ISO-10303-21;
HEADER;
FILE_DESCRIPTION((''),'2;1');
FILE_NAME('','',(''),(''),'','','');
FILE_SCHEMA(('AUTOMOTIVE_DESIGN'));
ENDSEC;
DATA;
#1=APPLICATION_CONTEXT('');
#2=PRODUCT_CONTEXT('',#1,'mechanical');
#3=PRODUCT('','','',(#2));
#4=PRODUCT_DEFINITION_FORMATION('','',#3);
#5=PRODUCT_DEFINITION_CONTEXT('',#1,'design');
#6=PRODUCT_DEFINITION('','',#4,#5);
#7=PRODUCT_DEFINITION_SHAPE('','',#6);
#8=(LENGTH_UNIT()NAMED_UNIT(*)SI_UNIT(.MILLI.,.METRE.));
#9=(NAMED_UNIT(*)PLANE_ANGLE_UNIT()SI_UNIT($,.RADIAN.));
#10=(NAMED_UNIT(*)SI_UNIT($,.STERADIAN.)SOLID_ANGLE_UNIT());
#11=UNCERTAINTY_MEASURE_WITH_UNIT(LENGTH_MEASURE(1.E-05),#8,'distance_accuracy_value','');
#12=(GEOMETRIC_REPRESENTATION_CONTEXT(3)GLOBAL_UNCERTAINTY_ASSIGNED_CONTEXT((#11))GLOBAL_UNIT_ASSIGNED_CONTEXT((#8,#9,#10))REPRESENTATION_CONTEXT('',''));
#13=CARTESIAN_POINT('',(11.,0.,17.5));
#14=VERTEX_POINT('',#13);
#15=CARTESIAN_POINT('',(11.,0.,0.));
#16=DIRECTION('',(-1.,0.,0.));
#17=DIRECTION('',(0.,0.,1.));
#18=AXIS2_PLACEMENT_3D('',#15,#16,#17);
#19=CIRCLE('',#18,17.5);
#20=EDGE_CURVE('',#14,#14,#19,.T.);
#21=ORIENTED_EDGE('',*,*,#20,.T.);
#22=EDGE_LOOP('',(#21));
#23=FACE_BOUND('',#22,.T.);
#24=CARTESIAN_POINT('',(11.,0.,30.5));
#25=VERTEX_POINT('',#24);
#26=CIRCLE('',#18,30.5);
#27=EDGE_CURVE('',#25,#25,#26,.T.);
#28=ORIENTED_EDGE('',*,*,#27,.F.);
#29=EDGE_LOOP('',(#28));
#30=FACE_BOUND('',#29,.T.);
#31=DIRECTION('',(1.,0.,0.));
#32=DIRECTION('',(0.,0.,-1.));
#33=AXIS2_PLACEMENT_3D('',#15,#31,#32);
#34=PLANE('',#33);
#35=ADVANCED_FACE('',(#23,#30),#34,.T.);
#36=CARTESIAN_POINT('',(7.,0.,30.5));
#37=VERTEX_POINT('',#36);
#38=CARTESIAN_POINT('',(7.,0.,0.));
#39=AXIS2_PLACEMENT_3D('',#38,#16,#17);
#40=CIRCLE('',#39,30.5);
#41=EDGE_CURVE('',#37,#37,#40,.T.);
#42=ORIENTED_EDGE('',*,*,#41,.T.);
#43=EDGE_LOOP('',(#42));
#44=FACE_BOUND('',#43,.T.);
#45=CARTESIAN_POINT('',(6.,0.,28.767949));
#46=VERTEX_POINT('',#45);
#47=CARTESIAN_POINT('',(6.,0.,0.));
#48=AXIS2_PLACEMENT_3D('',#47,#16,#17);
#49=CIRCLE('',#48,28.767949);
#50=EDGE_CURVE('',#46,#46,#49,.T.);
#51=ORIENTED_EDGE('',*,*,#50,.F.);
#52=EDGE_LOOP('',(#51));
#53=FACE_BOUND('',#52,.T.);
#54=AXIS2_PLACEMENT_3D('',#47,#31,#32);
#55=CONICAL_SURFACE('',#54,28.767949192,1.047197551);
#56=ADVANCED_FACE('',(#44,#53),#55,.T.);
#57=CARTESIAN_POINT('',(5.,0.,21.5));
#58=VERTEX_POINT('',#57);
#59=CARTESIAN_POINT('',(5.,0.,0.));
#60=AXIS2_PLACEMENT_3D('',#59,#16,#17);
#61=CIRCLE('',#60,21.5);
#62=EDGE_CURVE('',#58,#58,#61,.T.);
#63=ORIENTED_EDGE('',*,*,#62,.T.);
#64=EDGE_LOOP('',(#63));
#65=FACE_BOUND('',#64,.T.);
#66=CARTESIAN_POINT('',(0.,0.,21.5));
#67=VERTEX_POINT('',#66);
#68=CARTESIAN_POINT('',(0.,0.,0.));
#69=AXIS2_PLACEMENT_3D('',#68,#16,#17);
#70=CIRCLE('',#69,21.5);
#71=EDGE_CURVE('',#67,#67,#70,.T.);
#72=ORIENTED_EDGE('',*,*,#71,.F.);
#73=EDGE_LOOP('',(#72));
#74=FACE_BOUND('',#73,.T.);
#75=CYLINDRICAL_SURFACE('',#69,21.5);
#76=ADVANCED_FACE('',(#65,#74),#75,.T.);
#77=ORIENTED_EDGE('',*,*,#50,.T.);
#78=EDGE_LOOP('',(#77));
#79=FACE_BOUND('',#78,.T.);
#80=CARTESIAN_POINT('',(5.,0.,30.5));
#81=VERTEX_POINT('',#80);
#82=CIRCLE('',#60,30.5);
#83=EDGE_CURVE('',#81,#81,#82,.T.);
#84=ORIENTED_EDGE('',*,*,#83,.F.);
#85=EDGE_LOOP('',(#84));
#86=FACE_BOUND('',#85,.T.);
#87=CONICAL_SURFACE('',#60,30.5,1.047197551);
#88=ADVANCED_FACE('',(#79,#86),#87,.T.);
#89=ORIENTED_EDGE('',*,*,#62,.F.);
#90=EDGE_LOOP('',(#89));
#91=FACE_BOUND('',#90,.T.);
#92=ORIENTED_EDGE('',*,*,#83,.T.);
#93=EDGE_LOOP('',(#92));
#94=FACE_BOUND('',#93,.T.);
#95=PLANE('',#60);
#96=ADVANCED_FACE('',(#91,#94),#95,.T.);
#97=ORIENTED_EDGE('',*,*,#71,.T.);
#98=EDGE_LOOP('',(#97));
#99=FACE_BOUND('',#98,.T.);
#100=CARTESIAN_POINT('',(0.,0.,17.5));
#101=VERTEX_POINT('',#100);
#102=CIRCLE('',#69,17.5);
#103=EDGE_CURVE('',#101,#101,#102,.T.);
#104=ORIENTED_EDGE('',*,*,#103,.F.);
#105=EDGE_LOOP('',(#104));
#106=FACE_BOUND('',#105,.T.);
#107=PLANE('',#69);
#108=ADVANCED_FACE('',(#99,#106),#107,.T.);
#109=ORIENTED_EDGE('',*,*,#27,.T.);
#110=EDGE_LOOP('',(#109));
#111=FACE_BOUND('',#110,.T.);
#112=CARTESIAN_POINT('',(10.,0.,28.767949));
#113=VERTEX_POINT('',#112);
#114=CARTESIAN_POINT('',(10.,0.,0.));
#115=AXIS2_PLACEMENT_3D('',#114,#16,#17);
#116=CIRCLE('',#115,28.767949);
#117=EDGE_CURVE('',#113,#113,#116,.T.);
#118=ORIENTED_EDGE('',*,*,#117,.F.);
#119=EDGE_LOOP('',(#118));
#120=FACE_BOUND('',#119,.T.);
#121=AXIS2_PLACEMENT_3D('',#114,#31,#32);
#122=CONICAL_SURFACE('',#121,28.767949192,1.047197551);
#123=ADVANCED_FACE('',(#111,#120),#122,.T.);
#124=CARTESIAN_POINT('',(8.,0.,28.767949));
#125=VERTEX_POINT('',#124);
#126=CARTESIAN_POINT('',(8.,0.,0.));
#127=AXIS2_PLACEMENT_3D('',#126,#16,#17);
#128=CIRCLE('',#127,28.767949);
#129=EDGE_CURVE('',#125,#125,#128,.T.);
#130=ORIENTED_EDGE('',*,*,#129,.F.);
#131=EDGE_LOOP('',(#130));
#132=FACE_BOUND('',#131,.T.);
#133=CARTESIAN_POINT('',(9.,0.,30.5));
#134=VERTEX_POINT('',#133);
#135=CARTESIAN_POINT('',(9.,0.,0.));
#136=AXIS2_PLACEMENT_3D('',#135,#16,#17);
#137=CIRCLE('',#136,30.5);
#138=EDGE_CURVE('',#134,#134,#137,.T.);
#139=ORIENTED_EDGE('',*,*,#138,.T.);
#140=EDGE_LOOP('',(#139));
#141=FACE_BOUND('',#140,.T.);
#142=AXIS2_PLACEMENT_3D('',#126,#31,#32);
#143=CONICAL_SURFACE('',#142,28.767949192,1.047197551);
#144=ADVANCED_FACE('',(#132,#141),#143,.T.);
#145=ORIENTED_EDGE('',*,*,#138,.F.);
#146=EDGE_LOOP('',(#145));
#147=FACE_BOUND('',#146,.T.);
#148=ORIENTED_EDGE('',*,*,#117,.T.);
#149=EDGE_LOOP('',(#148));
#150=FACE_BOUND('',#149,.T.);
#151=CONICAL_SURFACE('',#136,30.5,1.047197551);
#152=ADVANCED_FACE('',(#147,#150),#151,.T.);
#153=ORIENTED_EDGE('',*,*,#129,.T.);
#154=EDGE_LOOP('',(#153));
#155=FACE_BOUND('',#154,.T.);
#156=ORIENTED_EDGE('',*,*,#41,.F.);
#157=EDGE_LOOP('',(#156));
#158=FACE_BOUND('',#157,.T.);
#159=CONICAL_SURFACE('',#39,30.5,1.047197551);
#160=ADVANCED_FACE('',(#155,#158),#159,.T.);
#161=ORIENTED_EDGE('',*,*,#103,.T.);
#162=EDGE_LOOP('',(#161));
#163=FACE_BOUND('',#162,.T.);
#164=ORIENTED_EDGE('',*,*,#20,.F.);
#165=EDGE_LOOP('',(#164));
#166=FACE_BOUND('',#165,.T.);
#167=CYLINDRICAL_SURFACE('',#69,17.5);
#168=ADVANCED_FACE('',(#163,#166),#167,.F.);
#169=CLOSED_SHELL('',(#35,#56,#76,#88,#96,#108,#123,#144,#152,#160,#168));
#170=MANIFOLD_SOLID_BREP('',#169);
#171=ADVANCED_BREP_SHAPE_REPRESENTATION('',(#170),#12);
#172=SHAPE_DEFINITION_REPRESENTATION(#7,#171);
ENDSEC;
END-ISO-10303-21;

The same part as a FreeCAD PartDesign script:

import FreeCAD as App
import Part
import Sketcher

V = App.Vector
Q = App.Units.Quantity

doc = App.newDocument("Part")
body = doc.addObject("PartDesign::Body", "Body")

# Sketch on XY plane
sketch1 = doc.addObject("Sketcher::SketchObject", "Sketch")
body.addObject(sketch1)
sketch1.AttachmentSupport = (doc.XY_Plane, [""])
sketch1.MapMode = "FlatFace"
sketch1.addGeometry(Part.LineSegment(V(0, 17.5, 0), V(11, 17.5, 0)), False)
sketch1.addGeometry(Part.LineSegment(V(11, 17.5, 0), V(11, 30.5, 0)), False)
sketch1.addGeometry(Part.LineSegment(V(11, 30.5, 0), V(10, 28.8, 0)), False)
sketch1.addGeometry(Part.LineSegment(V(10, 28.8, 0), V(9, 30.5, 0)), False)
sketch1.addGeometry(Part.LineSegment(V(9, 30.5, 0), V(8, 28.8, 0)), False)
sketch1.addGeometry(Part.LineSegment(V(8, 28.8, 0), V(7, 30.5, 0)), False)
sketch1.addGeometry(Part.LineSegment(V(7, 30.5, 0), V(6, 28.8, 0)), False)
sketch1.addGeometry(Part.LineSegment(V(6, 28.8, 0), V(5, 30.5, 0)), False)
sketch1.addGeometry(Part.LineSegment(V(5, 30.5, 0), V(5, 21.5, 0)), False)
sketch1.addGeometry(Part.LineSegment(V(5, 21.5, 0), V(0, 21.5, 0)), False)
sketch1.addGeometry(Part.LineSegment(V(0, 21.5, 0), V(0, 17.5, 0)), False)
sketch1.addConstraint(Sketcher.Constraint("Coincident", 0, 2, 1, 1))
sketch1.addConstraint(Sketcher.Constraint("Coincident", 1, 2, 2, 1))
sketch1.addConstraint(Sketcher.Constraint("Coincident", 2, 2, 3, 1))
sketch1.addConstraint(Sketcher.Constraint("Coincident", 3, 2, 4, 1))
sketch1.addConstraint(Sketcher.Constraint("Coincident", 4, 2, 5, 1))
sketch1.addConstraint(Sketcher.Constraint("Coincident", 5, 2, 6, 1))
sketch1.addConstraint(Sketcher.Constraint("Coincident", 6, 2, 7, 1))
sketch1.addConstraint(Sketcher.Constraint("Coincident", 7, 2, 8, 1))
sketch1.addConstraint(Sketcher.Constraint("Coincident", 8, 2, 9, 1))
sketch1.addConstraint(Sketcher.Constraint("Coincident", 9, 2, 10, 1))
sketch1.addConstraint(Sketcher.Constraint("Coincident", 10, 2, 0, 1))
sketch1.addConstraint(Sketcher.Constraint("Horizontal", 0))
sketch1.addConstraint(Sketcher.Constraint("Vertical", 1))
sketch1.addConstraint(Sketcher.Constraint("Vertical", 8))
sketch1.addConstraint(Sketcher.Constraint("Horizontal", 9))
sketch1.addConstraint(Sketcher.Constraint("Vertical", 10))
sketch1.addConstraint(Sketcher.Constraint("PointOnObject", 9, 2, -2))
sketch1.addConstraint(Sketcher.Constraint("Parallel", 2, 4))
sketch1.addConstraint(Sketcher.Constraint("Parallel", 3, 5))
sketch1.addConstraint(Sketcher.Constraint("Parallel", 4, 6))
sketch1.addConstraint(Sketcher.Constraint("Parallel", 5, 7))
sketch1.addConstraint(Sketcher.Constraint("Horizontal", 1, 2, 3, 2))
sketch1.addConstraint(Sketcher.Constraint("Horizontal", 2, 2, 4, 2))
sketch1.addConstraint(Sketcher.Constraint("Horizontal", 3, 2, 5, 2))
sketch1.addConstraint(Sketcher.Constraint("Horizontal", 4, 2, 6, 2))
sketch1.addConstraint(Sketcher.Constraint("Horizontal", 5, 2, 7, 2))
sketch1.addConstraint(Sketcher.Constraint("Equal", 2, 3))
sketch1.addConstraint(Sketcher.Constraint("DistanceX", 0, 1, 0, 2, Q("11 mm")))
sketch1.addConstraint(Sketcher.Constraint("DistanceX", 9, 2, 9, 1, Q("5 mm")))
sketch1.addConstraint(Sketcher.Constraint("DistanceY", 1, 1, 1, 2, Q("13 mm")))
sketch1.addConstraint(Sketcher.Constraint("DistanceY", 8, 2, 8, 1, Q("9 mm")))
sketch1.addConstraint(Sketcher.Constraint("Angle", 2, Q("-120 deg")))
sketch1.addConstraint(Sketcher.Constraint("DistanceY", -1, 1, 0, 2, Q("17.5 mm")))
revolution = doc.addObject("PartDesign::Revolution", "Revolution")
body.addObject(revolution)
revolution.Profile = sketch1
revolution.ReferenceAxis = (sketch1, ["H_Axis"])
revolution.Angle = 360

doc.recompute()
